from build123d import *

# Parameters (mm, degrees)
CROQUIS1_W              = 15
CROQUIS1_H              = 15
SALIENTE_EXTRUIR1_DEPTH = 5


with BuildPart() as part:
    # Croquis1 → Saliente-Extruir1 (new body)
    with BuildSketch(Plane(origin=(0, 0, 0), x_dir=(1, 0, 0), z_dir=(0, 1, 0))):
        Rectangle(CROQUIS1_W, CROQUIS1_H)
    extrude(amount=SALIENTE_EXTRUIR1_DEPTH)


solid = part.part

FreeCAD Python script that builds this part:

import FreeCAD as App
import Part
import Sketcher
Q = App.Units.Quantity

doc = App.newDocument("Part")
params = doc.addObject("Spreadsheet::Sheet", "Params")
for row, (alias, value) in enumerate([
    ("sketch1_width", "15 mm"),
    ("pad1_length", "5 mm"),
], start=1):
    params.set(f"A{row}", alias)
    params.set(f"B{row}", "=" + value)
    params.setAlias(f"B{row}", alias)

body = doc.addObject("PartDesign::Body", "Body")

sketch1 = body.newObject("Sketcher::SketchObject", "Sketch")
sketch1.AttachmentSupport = (doc.getObject("XZ_Plane"), [""])
sketch1.MapMode = "FlatFace"
sketch1.addGeometry(Part.LineSegment(App.Vector(-7.5, -7.5, 0), App.Vector(-7.5, 7.5, 0)), False)
sketch1.addGeometry(Part.LineSegment(App.Vector(-7.5, 7.5, 0), App.Vector(7.5, 7.5, 0)), False)
sketch1.addGeometry(Part.LineSegment(App.Vector(7.5, 7.5, 0), App.Vector(7.5, -7.5, 0)), False)
sketch1.addGeometry(Part.LineSegment(App.Vector(7.5, -7.5, 0), App.Vector(-7.5, -7.5, 0)), False)
sketch1.addConstraint(Sketcher.Constraint("Coincident", 0, 2, 1, 1))
sketch1.addConstraint(Sketcher.Constraint("Coincident", 1, 2, 2, 1))
sketch1.addConstraint(Sketcher.Constraint("Coincident", 2, 2, 3, 1))
sketch1.addConstraint(Sketcher.Constraint("Coincident", 3, 2, 0, 1))
sketch1.addConstraint(Sketcher.Constraint("Vertical", 0))
sketch1.addConstraint(Sketcher.Constraint("Horizontal", 1))
sketch1.addConstraint(Sketcher.Constraint("Vertical", 2))
sketch1.addConstraint(Sketcher.Constraint("Horizontal", 3))
sketch1.addConstraint(Sketcher.Constraint("Symmetric", 0, 2, 2, 2, -1, 1))
sketch1.addConstraint(Sketcher.Constraint("Equal", 3, 0))
sketch1.addConstraint(Sketcher.Constraint("DistanceX", 1, 1, 1, 2, Q("15 mm")))
sketch1.setExpression("Constraints[10]", "Params.sketch1_width")
pad1 = body.newObject("PartDesign::Pad", "Pad")
pad1.Profile = sketch1
pad1.setExpression("Length", "Params.pad1_length")
pad1.Reversed = True

doc.recompute()
